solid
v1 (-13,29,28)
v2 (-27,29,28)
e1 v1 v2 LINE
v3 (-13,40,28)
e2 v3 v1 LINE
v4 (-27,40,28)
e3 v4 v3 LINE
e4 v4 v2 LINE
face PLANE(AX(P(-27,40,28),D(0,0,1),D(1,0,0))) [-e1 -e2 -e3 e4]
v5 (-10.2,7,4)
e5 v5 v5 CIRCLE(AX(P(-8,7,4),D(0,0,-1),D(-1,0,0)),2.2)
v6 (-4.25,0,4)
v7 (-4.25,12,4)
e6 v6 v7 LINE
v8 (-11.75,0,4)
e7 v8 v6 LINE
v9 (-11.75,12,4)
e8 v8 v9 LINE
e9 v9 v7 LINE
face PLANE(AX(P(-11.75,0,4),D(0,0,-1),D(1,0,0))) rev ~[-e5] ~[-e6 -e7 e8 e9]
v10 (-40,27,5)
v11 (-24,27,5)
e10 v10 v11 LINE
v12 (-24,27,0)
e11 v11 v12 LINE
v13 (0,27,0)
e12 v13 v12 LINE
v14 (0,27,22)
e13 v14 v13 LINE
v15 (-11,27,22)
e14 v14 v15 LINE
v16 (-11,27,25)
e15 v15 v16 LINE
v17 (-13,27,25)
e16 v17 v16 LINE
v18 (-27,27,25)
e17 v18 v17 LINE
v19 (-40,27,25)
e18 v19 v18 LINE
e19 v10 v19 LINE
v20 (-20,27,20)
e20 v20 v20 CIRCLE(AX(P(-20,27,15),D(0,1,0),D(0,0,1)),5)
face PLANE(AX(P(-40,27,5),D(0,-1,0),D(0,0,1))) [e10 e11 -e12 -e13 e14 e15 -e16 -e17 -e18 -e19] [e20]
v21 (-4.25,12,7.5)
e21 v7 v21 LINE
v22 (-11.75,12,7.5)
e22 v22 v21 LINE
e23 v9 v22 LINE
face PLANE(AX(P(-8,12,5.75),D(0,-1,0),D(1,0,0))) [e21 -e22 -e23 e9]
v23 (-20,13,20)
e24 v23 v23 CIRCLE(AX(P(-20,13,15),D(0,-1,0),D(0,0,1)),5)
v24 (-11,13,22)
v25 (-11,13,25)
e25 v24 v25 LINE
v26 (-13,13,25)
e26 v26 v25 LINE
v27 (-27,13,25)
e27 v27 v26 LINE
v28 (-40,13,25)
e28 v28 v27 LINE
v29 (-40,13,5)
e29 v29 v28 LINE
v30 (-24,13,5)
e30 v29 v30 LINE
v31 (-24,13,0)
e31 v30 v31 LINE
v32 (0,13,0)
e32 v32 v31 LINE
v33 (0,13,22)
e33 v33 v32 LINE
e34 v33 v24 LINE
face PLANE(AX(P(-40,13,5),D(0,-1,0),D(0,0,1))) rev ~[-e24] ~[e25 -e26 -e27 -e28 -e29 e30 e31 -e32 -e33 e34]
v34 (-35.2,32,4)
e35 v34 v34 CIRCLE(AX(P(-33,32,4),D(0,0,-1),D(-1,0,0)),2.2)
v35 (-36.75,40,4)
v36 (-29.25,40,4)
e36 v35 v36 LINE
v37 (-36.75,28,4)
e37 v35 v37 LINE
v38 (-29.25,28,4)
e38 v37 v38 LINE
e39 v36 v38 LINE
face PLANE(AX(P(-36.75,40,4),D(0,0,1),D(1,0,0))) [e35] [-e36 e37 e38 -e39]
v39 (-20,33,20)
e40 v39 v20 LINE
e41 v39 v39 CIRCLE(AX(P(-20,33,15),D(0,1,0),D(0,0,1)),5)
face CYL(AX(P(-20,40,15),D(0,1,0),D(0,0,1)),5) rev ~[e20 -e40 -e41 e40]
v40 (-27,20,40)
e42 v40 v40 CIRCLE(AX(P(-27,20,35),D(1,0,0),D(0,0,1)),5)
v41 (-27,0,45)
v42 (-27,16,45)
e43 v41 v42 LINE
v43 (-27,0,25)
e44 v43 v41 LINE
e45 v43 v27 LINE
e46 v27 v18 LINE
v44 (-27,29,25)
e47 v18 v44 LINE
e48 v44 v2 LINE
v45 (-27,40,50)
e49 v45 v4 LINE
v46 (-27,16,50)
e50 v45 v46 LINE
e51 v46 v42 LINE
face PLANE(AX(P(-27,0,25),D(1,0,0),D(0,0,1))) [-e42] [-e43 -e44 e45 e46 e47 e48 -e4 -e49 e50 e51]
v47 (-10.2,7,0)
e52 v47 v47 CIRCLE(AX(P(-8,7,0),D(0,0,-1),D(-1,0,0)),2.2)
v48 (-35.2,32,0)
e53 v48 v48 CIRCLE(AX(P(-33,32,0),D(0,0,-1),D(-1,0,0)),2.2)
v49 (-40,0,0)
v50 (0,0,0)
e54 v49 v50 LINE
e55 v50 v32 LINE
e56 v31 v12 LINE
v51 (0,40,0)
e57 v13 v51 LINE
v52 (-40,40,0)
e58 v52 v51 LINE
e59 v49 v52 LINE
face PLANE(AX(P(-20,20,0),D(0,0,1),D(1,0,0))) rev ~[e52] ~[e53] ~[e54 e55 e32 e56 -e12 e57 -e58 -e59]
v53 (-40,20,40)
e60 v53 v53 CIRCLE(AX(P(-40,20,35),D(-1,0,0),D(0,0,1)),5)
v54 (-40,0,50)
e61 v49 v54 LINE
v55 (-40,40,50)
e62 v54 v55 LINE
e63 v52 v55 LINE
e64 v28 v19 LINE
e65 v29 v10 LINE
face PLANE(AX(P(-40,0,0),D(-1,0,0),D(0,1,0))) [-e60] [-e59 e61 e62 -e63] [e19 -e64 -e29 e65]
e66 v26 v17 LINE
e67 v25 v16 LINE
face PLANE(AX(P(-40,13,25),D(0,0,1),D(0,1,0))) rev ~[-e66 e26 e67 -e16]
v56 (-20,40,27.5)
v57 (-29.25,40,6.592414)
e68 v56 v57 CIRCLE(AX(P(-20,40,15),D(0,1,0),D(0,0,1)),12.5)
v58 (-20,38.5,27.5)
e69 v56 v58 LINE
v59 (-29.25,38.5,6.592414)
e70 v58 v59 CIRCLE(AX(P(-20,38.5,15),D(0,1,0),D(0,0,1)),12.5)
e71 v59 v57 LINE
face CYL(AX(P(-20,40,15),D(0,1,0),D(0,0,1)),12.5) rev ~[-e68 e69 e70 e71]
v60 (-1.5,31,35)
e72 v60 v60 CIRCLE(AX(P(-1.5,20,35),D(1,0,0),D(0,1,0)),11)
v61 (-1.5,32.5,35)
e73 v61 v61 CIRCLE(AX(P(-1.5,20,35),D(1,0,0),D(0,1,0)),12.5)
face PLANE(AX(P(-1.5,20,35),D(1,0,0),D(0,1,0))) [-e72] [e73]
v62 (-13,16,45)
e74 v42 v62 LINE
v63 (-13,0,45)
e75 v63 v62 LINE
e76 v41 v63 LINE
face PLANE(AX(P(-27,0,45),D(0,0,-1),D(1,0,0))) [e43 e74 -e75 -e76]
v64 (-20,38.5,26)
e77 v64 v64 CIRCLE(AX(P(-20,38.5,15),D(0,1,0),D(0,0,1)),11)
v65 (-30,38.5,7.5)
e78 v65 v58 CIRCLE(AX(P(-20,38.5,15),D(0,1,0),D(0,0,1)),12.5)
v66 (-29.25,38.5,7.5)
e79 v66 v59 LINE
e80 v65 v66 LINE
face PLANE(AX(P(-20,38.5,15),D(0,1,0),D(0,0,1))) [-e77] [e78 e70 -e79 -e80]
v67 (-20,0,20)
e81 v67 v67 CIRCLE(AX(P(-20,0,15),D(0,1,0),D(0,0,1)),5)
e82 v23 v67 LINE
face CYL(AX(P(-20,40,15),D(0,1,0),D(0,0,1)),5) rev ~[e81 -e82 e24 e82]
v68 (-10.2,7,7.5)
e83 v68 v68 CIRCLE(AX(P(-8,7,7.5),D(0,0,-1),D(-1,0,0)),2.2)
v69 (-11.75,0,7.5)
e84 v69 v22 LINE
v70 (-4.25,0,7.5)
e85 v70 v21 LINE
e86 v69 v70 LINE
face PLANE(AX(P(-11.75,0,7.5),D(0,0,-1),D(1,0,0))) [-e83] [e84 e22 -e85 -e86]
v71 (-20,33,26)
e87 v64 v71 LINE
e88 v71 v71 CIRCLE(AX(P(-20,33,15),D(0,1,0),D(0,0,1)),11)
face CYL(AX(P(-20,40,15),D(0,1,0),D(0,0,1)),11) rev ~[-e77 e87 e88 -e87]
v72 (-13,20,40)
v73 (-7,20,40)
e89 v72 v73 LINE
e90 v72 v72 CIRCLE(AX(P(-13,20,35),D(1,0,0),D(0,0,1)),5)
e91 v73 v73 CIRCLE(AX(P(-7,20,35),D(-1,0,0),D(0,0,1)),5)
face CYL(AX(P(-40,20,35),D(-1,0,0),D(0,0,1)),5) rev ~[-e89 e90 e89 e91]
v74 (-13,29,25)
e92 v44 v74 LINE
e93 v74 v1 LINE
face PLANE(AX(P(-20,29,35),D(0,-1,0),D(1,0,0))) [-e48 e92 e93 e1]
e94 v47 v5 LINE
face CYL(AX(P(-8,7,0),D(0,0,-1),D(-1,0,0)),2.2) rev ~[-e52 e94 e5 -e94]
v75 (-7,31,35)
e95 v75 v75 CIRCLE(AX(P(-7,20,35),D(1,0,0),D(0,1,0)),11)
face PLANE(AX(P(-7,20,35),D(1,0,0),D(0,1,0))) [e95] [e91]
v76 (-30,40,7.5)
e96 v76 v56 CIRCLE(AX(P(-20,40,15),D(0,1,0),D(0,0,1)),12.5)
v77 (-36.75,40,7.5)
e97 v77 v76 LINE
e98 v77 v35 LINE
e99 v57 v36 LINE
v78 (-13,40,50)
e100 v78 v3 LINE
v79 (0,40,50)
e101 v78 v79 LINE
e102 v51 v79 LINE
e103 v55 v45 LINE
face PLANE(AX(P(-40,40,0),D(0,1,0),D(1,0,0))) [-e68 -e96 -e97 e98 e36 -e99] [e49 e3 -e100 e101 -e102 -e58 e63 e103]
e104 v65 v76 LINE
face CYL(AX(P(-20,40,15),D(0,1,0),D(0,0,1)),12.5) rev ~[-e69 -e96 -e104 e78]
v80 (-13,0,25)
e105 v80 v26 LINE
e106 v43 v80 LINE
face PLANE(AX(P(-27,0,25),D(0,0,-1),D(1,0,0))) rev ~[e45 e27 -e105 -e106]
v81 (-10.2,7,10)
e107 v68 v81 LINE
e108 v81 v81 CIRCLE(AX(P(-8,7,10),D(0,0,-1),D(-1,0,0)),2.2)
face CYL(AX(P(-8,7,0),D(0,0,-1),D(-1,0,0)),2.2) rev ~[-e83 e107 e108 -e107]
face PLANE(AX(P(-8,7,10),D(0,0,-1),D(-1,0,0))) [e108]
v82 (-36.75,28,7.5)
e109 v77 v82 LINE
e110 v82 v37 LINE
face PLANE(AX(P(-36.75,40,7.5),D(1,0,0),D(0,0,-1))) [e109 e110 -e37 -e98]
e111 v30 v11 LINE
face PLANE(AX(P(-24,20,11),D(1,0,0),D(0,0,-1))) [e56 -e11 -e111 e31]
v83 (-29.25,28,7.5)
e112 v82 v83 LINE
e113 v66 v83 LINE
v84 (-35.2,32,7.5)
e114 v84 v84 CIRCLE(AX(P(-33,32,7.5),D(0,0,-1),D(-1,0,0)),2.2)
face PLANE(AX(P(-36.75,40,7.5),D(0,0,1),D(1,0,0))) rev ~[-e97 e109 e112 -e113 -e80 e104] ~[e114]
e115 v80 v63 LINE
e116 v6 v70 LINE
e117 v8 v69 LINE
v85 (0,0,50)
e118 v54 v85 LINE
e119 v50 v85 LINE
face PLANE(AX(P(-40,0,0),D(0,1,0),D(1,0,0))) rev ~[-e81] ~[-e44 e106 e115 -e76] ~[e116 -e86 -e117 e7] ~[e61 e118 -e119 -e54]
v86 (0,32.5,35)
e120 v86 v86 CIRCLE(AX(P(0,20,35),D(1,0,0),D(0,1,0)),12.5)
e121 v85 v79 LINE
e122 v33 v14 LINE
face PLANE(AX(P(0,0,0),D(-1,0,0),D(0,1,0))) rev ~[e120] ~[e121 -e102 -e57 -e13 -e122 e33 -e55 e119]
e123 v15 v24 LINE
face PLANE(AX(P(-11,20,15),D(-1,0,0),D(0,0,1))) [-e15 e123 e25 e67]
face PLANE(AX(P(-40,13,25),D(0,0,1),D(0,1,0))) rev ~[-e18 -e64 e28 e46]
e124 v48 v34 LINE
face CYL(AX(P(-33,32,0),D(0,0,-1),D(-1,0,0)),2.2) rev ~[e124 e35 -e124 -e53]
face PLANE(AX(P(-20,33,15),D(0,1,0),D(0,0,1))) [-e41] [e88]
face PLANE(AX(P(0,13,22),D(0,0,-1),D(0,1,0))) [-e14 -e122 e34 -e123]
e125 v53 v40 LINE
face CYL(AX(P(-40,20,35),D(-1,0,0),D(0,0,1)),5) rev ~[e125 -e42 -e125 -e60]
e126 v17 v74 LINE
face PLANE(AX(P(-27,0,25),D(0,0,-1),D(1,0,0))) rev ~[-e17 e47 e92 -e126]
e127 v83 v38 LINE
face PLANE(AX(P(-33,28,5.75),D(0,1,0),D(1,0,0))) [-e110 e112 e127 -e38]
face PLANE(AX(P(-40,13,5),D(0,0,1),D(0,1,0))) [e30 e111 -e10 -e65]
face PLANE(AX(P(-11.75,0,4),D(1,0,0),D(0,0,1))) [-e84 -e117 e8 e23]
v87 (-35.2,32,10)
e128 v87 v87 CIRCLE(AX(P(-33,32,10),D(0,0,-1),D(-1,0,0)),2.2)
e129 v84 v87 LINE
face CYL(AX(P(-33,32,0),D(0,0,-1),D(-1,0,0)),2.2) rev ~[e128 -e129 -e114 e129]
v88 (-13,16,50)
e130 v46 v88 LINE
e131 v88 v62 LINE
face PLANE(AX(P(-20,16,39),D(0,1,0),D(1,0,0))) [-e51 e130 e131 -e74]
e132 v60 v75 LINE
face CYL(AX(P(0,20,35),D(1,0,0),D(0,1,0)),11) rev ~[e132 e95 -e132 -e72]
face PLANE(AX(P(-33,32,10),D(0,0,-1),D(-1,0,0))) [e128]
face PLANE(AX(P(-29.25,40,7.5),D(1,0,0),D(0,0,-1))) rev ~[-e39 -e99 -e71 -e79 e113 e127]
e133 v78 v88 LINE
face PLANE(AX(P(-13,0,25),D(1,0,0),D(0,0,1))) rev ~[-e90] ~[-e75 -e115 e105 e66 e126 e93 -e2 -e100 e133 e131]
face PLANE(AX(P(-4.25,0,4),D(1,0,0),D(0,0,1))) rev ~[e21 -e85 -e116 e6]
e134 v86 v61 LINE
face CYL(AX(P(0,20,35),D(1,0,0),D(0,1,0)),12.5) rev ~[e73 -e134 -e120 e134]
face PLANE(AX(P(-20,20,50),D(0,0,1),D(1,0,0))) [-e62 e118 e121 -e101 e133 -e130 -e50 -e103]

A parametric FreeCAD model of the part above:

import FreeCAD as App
import Part
import Sketcher

V = App.Vector

doc = App.newDocument("Part")
body = doc.addObject("PartDesign::Body", "Body")

sketch1 = body.newObject("Sketcher::SketchObject", "Sketch")
sketch1.AttachmentSupport = (doc.getObject("XY_Plane"), [""])
sketch1.MapMode = "FlatFace"
sketch1.addGeometry([
    Part.LineSegment(V(-40, 40, 0), V(-40, 0, 0)),
    Part.LineSegment(V(-40, 0, 0), V(0, 0, 0)),
    Part.LineSegment(V(0, 0, 0), V(0, 40, 0)),
    Part.LineSegment(V(0, 40, 0), V(-40, 40, 0)),
], False)
sketch1.addConstraint([
    Sketcher.Constraint("Coincident", 0, 2, 1, 1),
    Sketcher.Constraint("Coincident", 1, 2, 2, 1),
    Sketcher.Constraint("Coincident", 2, 2, 3, 1),
    Sketcher.Constraint("Coincident", 3, 2, 0, 1),
    Sketcher.Constraint("Vertical", 0),
    Sketcher.Constraint("Horizontal", 1),
    Sketcher.Constraint("Vertical", 2),
    Sketcher.Constraint("Horizontal", 3),
    Sketcher.Constraint("Coincident", 1, 2, -1, 1),
    Sketcher.Constraint("Equal", 3, 0),
    Sketcher.Constraint("DistanceX", 1, 1, 1, 2, 40.0),
])
pad1 = body.newObject("PartDesign::Pad", "Pad")
pad1.Profile = sketch1
pad1.Length = 50

sketch2 = body.newObject("Sketcher::SketchObject", "Sketch001")
sketch2.AttachmentSupport = (doc.getObject("XZ_Plane"), [""])
sketch2.MapMode = "FlatFace"
sketch2.AttachmentOffset = App.Placement(V(0, 0, -40), App.Rotation())
sketch2.addGeometry(Part.Circle(V(-20, 15, 0), V(0, 0, 1), 5), False)
sketch2.addConstraint([
    Sketcher.Constraint("Diameter", 0, 10.0),
    Sketcher.Constraint("DistanceX", 0, 3, -1, 1, 20.0),
    Sketcher.Constraint("DistanceY", -1, 1, 0, 3, 15.0),
])
pocket1 = body.newObject("PartDesign::Pocket", "Pocket")
pocket1.Profile = sketch2
pocket1.Type = "ThroughAll"
pocket1.Reversed = True

sketch3 = body.newObject("Sketcher::SketchObject", "Sketch002")
sketch3.AttachmentSupport = (doc.getObject("YZ_Plane"), [""])
sketch3.MapMode = "FlatFace"
sketch3.AttachmentOffset = App.Placement(V(0, 0, -40), App.Rotation())
sketch3.addGeometry(Part.Circle(V(20, 35, 0), V(0, 0, 1), 5), False)
sketch3.addConstraint([
    Sketcher.Constraint("Diameter", 0, 10.0),
    Sketcher.Constraint("DistanceX", -1, 1, 0, 3, 20.0),
    Sketcher.Constraint("DistanceY", -1, 1, 0, 3, 35.0),
])
pocket2 = body.newObject("PartDesign::Pocket", "Pocket001")
pocket2.Profile = sketch3
pocket2.Type = "ThroughAll"
pocket2.Reversed = True

sketch4 = body.newObject("Sketcher::SketchObject", "Sketch003")
sketch4.AttachmentSupport = (doc.getObject("YZ_Plane"), [""])
sketch4.MapMode = "FlatFace"
sketch4.AttachmentOffset = App.Placement(V(0, 0, -40), App.Rotation())
sketch4.addGeometry([
    Part.LineSegment(V(27, 5, 0), V(13, 5, 0)),
    Part.LineSegment(V(13, 5, 0), V(13, 25, 0)),
    Part.LineSegment(V(13, 25, 0), V(27, 25, 0)),
    Part.LineSegment(V(27, 25, 0), V(27, 5, 0)),
], False)
sketch4.addConstraint([
    Sketcher.Constraint("Coincident", 0, 2, 1, 1),
    Sketcher.Constraint("Coincident", 1, 2, 2, 1),
    Sketcher.Constraint("Coincident", 2, 2, 3, 1),
    Sketcher.Constraint("Coincident", 3, 2, 0, 1),
    Sketcher.Constraint("Horizontal", 0),
    Sketcher.Constraint("Vertical", 1),
    Sketcher.Constraint("Horizontal", 2),
    Sketcher.Constraint("Vertical", 3),
    Sketcher.Constraint("DistanceX", 0, 2, 0, 1, 14.0),
    Sketcher.Constraint("DistanceY", 1, 1, 1, 2, 20.0),
    Sketcher.Constraint("DistanceX", -1, 1, 0, 2, 13.0),
    Sketcher.Constraint("DistanceY", -1, 1, 0, 2, 5.0),
])
pocket3 = body.newObject("PartDesign::Pocket", "Pocket002")
pocket3.Profile = sketch4
pocket3.Length = 29
pocket3.Reversed = True

sketch5 = body.newObject("Sketcher::SketchObject", "Sketch004")
sketch5.AttachmentSupport = (doc.getObject("XZ_Plane"), [""])
sketch5.MapMode = "FlatFace"
sketch5.addGeometry([
    Part.LineSegment(V(-27, 45, 0), V(-27, 25, 0)),
    Part.LineSegment(V(-27, 25, 0), V(-13, 25, 0)),
    Part.LineSegment(V(-13, 25, 0), V(-13, 45, 0)),
    Part.LineSegment(V(-13, 45, 0), V(-27, 45, 0)),
], False)
sketch5.addConstraint([
    Sketcher.Constraint("Coincident", 0, 2, 1, 1),
    Sketcher.Constraint("Coincident", 1, 2, 2, 1),
    Sketcher.Constraint("Coincident", 2, 2, 3, 1),
    Sketcher.Constraint("Coincident", 3, 2, 0, 1),
    Sketcher.Constraint("Vertical", 0),
    Sketcher.Constraint("Horizontal", 1),
    Sketcher.Constraint("Vertical", 2),
    Sketcher.Constraint("Horizontal", 3),
    Sketcher.Constraint("DistanceX", 1, 1, 1, 2, 14.0),
    Sketcher.Constraint("DistanceY", 0, 2, 0, 1, 20.0),
    Sketcher.Constraint("DistanceX", 0, 2, -1, 1, 27.0),
    Sketcher.Constraint("DistanceY", -1, 1, 0, 2, 25.0),
])
pocket4 = body.newObject("PartDesign::Pocket", "Pocket003")
pocket4.Profile = sketch5
pocket4.Length = 29

sketch6 = body.newObject("Sketcher::SketchObject", "Sketch005")
sketch6.AttachmentSupport = (doc.getObject("YZ_Plane"), [""])
sketch6.MapMode = "FlatFace"
sketch6.addGeometry([
    Part.LineSegment(V(27, 22, 0), V(13, 22, 0)),
    Part.LineSegment(V(13, 22, 0), V(13, 0, 0)),
    Part.LineSegment(V(13, 0, 0), V(27, 0, 0)),
    Part.LineSegment(V(27, 0, 0), V(27, 22, 0)),
], False)
sketch6.addConstraint([
    Sketcher.Constraint("Coincident", 0, 2, 1, 1),
    Sketcher.Constraint("Coincident", 1, 2, 2, 1),
    Sketcher.Constraint("Coincident", 2, 2, 3, 1),
    Sketcher.Constraint("Coincident", 3, 2, 0, 1),
    Sketcher.Constraint("Horizontal", 0),
    Sketcher.Constraint("Vertical", 1),
    Sketcher.Constraint("Horizontal", 2),
    Sketcher.Constraint("Vertical", 3),
    Sketcher.Constraint("PointOnObject", 1, 2, -1),
    Sketcher.Constraint("DistanceX", 0, 2, 0, 1, 14.0),
    Sketcher.Constraint("DistanceY", 1, 2, 1, 1, 22.0),
    Sketcher.Constraint("DistanceX", -1, 1, 0, 2, 13.0),
])
pocket5 = body.newObject("PartDesign::Pocket", "Pocket004")
pocket5.Profile = sketch6
pocket5.Length = 24

sketch7 = body.newObject("Sketcher::SketchObject", "Sketch006")
sketch7.AttachmentSupport = (doc.getObject("XZ_Plane"), [""])
sketch7.MapMode = "FlatFace"
sketch7.AttachmentOffset = App.Placement(V(0, 0, -40), App.Rotation())
sketch7.addGeometry([
    Part.LineSegment(V(-27, 28, 0), V(-27, 50, 0)),
    Part.LineSegment(V(-27, 50, 0), V(-13, 50, 0)),
    Part.LineSegment(V(-13, 50, 0), V(-13, 28, 0)),
    Part.LineSegment(V(-13, 28, 0), V(-27, 28, 0)),
], False)
sketch7.addConstraint([
    Sketcher.Constraint("Coincident", 0, 2, 1, 1),
    Sketcher.Constraint("Coincident", 1, 2, 2, 1),
    Sketcher.Constraint("Coincident", 2, 2, 3, 1),
    Sketcher.Constraint("Coincident", 3, 2, 0, 1),
    Sketcher.Constraint("Vertical", 0),
    Sketcher.Constraint("Horizontal", 1),
    Sketcher.Constraint("Vertical", 2),
    Sketcher.Constraint("Horizontal", 3),
    Sketcher.Constraint("DistanceX", 1, 1, 1, 2, 14.0),
    Sketcher.Constraint("DistanceY", 0, 1, 0, 2, 22.0),
    Sketcher.Constraint("DistanceX", 0, 2, -1, 1, 27.0),
    Sketcher.Constraint("DistanceY", -1, 1, 0, 2, 50.0),
])
pocket6 = body.newObject("PartDesign::Pocket", "Pocket005")
pocket6.Profile = sketch7
pocket6.Length = 24
pocket6.Reversed = True

sketch8 = body.newObject("Sketcher::SketchObject", "Sketch007")
sketch8.AttachmentSupport = (doc.getObject("YZ_Plane"), [""])
sketch8.MapMode = "FlatFace"
sketch8.addGeometry(Part.Circle(V(20, 35, 0), V(0, 0, 1), 11), False)
sketch8.addConstraint([
    Sketcher.Constraint("Diameter", 0, 22.0),
    Sketcher.Constraint("DistanceX", -1, 1, 0, 3, 20.0),
    Sketcher.Constraint("DistanceY", -1, 1, 0, 3, 35.0),
])
pocket7 = body.newObject("PartDesign::Pocket", "Pocket006")
pocket7.Profile = sketch8
pocket7.Length = 7

sketch9 = body.newObject("Sketcher::SketchObject", "Sketch008")
sketch9.AttachmentSupport = (doc.getObject("YZ_Plane"), [""])
sketch9.MapMode = "FlatFace"
sketch9.addGeometry(Part.Circle(V(20, 35, 0), V(0, 0, 1), 12.5), False)
sketch9.addConstraint([
    Sketcher.Constraint("Diameter", 0, 25.0),
    Sketcher.Constraint("DistanceX", -1, 1, 0, 3, 20.0),
    Sketcher.Constraint("DistanceY", -1, 1, 0, 3, 35.0),
])
pocket8 = body.newObject("PartDesign::Pocket", "Pocket007")
pocket8.Profile = sketch9
pocket8.Length = 1.5

sketch10 = body.newObject("Sketcher::SketchObject", "Sketch009")
sketch10.AttachmentSupport = (doc.getObject("XZ_Plane"), [""])
sketch10.MapMode = "FlatFace"
sketch10.AttachmentOffset = App.Placement(V(0, 0, -40), App.Rotation())
sketch10.addGeometry(Part.Circle(V(-20, 15, 0), V(0, 0, 1), 11), False)
sketch10.addConstraint([
    Sketcher.Constraint("Diameter", 0, 22.0),
    Sketcher.Constraint("DistanceX", 0, 3, -1, 1, 20.0),
    Sketcher.Constraint("DistanceY", -1, 1, 0, 3, 15.0),
])
pocket9 = body.newObject("PartDesign::Pocket", "Pocket008")
pocket9.Profile = sketch10
pocket9.Length = 7
pocket9.Reversed = True

sketch11 = body.newObject("Sketcher::SketchObject", "Sketch010")
sketch11.AttachmentSupport = (doc.getObject("XZ_Plane"), [""])
sketch11.MapMode = "FlatFace"
sketch11.AttachmentOffset = App.Placement(V(0, 0, -40), App.Rotation())
sketch11.addGeometry(Part.Circle(V(-20, 15, 0), V(0, 0, 1), 12.5), False)
sketch11.addConstraint([
    Sketcher.Constraint("Diameter", 0, 25.0),
    Sketcher.Constraint("DistanceX", 0, 3, -1, 1, 20.0),
    Sketcher.Constraint("DistanceY", -1, 1, 0, 3, 15.0),
])
pocket10 = body.newObject("PartDesign::Pocket", "Pocket009")
pocket10.Profile = sketch11
pocket10.Length = 1.5
pocket10.Reversed = True

sketch12 = body.newObject("Sketcher::SketchObject", "Sketch011")
sketch12.AttachmentSupport = (doc.getObject("XY_Plane"), [""])
sketch12.MapMode = "FlatFace"
sketch12.addGeometry([
    Part.Circle(V(-33, 32, 0), V(0, 0, 1), 2.2),
    Part.Circle(V(-8, 7, 0), V(0, 0, 1), 2.2),
], False)
sketch12.addConstraint([
    Sketcher.Constraint("Equal", 0, 1),
    Sketcher.Constraint("Diameter", 0, 4.4),
    Sketcher.Constraint("DistanceX", 0, 3, -1, 1, 33.0),
    Sketcher.Constraint("DistanceY", -1, 1, 0, 3, 32.0),
    Sketcher.Constraint("DistanceX", 1, 3, -1, 1, 8.0),
    Sketcher.Constraint("DistanceY", -1, 1, 1, 3, 7.0),
])
pocket11 = body.newObject("PartDesign::Pocket", "Pocket010")
pocket11.Profile = sketch12
pocket11.Length = 10
pocket11.Reversed = True

sketch13 = body.newObject("Sketcher::SketchObject", "Sketch012")
sketch13.AttachmentSupport = (doc.getObject("XZ_Plane"), [""])
sketch13.MapMode = "FlatFace"
sketch13.AttachmentOffset = App.Placement(V(0, 0, -40), App.Rotation())
sketch13.addGeometry([
    Part.LineSegment(V(-36.75, 4, 0), V(-36.75, 7.5, 0)),
    Part.LineSegment(V(-36.75, 7.5, 0), V(-29.25, 7.5, 0)),
    Part.LineSegment(V(-29.25, 7.5, 0), V(-29.25, 4, 0)),
    Part.LineSegment(V(-29.25, 4, 0), V(-36.75, 4, 0)),
], False)
sketch13.addConstraint([
    Sketcher.Constraint("Coincident", 0, 2, 1, 1),
    Sketcher.Constraint("Coincident", 1, 2, 2, 1),
    Sketcher.Constraint("Coincident", 2, 2, 3, 1),
    Sketcher.Constraint("Coincident", 3, 2, 0, 1),
    Sketcher.Constraint("Vertical", 0),
    Sketcher.Constraint("Horizontal", 1),
    Sketcher.Constraint("Vertical", 2),
    Sketcher.Constraint("Horizontal", 3),
    Sketcher.Constraint("DistanceX", 1, 1, 1, 2, 7.5),
    Sketcher.Constraint("DistanceY", 0, 1, 0, 2, 3.5),
    Sketcher.Constraint("DistanceY", -1, 1, 2, 2, 4.0),
    Sketcher.Constraint("DistanceX", 0, 2, -1, 1, 36.75),
])
pocket12 = body.newObject("PartDesign::Pocket", "Pocket011")
pocket12.Profile = sketch13
pocket12.Length = 12
pocket12.Reversed = True

sketch14 = body.newObject("Sketcher::SketchObject", "Sketch013")
sketch14.AttachmentSupport = (doc.getObject("XZ_Plane"), [""])
sketch14.MapMode = "FlatFace"
sketch14.addGeometry([
    Part.LineSegment(V(-11.75, 7.5, 0), V(-11.75, 4, 0)),
    Part.LineSegment(V(-11.75, 4, 0), V(-4.25, 4, 0)),
    Part.LineSegment(V(-4.25, 4, 0), V(-4.25, 7.5, 0)),
    Part.LineSegment(V(-4.25, 7.5, 0), V(-11.75, 7.5, 0)),
], False)
sketch14.addConstraint([
    Sketcher.Constraint("Coincident", 0, 2, 1, 1),
    Sketcher.Constraint("Coincident", 1, 2, 2, 1),
    Sketcher.Constraint("Coincident", 2, 2, 3, 1),
    Sketcher.Constraint("Coincident", 3, 2, 0, 1),
    Sketcher.Constraint("Vertical", 0),
    Sketcher.Constraint("Horizontal", 1),
    Sketcher.Constraint("Vertical", 2),
    Sketcher.Constraint("Horizontal", 3),
    Sketcher.Constraint("DistanceX", 1, 1, 1, 2, 7.5),
    Sketcher.Constraint("DistanceY", 0, 2, 0, 1, 3.5),
    Sketcher.Constraint("DistanceY", -1, 1, 0, 2, 4.0),
    Sketcher.Constraint("DistanceX", 0, 2, -1, 1, 11.75),
])
pocket13 = body.newObject("PartDesign::Pocket", "Pocket012")
pocket13.Profile = sketch14
pocket13.Length = 12

doc.recompute()
